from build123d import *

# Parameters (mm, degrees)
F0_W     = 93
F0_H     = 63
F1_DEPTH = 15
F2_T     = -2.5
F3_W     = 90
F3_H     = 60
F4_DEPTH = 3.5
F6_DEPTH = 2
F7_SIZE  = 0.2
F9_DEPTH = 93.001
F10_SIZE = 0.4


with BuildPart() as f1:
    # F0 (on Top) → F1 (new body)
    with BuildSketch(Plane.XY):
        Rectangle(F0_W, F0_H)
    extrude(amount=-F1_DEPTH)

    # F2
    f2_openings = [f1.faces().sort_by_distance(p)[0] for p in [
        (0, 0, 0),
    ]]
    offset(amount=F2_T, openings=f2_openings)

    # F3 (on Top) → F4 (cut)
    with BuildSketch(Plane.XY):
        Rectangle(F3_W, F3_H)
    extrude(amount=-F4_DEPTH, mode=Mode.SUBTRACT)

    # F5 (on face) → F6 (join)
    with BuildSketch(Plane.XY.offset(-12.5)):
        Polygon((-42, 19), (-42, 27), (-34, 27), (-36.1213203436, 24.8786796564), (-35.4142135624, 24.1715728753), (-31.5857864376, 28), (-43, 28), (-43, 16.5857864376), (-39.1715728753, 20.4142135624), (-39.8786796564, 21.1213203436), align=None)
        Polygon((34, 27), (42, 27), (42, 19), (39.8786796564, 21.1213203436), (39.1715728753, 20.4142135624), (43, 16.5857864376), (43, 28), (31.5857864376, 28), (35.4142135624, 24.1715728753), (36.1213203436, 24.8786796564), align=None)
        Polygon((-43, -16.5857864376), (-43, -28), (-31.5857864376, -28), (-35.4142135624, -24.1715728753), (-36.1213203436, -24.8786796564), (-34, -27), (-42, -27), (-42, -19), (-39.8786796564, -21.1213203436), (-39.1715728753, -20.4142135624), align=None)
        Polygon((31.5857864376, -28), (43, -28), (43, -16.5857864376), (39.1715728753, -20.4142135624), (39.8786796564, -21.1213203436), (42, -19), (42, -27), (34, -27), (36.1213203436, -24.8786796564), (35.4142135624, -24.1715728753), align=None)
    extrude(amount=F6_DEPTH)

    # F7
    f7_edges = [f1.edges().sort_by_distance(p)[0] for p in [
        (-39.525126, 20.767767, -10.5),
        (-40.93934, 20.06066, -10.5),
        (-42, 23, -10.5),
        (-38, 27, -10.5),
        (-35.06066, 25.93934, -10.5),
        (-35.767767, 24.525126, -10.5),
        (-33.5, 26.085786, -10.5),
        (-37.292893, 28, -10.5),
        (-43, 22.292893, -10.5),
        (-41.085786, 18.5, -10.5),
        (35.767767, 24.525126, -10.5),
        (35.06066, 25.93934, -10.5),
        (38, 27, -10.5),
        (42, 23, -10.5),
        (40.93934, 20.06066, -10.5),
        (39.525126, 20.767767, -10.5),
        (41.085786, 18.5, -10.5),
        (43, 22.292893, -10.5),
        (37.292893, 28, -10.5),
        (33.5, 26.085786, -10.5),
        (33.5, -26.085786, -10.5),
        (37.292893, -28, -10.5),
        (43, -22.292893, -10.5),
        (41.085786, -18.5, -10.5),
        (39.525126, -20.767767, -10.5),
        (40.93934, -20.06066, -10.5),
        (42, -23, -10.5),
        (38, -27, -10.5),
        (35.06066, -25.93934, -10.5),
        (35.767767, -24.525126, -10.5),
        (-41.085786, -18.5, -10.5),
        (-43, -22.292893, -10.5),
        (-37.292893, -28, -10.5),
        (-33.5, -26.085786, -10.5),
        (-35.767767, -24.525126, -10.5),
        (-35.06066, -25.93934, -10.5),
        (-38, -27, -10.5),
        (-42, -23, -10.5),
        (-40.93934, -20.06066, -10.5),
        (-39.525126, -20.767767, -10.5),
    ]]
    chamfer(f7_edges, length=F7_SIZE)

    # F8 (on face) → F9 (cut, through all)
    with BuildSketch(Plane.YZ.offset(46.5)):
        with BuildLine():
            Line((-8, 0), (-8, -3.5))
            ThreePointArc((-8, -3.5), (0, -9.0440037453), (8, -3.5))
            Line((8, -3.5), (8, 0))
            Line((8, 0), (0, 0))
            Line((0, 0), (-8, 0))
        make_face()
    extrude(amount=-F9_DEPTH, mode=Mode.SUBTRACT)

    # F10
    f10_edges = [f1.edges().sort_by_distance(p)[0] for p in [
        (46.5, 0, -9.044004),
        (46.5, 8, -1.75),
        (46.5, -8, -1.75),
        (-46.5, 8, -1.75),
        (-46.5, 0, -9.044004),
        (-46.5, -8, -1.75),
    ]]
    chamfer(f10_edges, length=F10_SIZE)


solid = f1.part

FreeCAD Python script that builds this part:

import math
import FreeCAD as App
import Part
import Sketcher
from FreeCAD import Vector
Q = App.Units.Quantity


def edges_at(feature, points):
    """Names of the edges that pass closest to the given points."""
    edges = feature.Shape.Edges
    near = lambda p: min(range(len(edges)), key=lambda i: edges[i].distToShape(Part.Vertex(*p))[0])
    return sorted({f"Edge{near(p) + 1}" for p in points})


def faces_at(feature, points):
    """Names of the faces that lie closest to the given points."""
    faces = feature.Shape.Faces
    near = lambda p: min(range(len(faces)), key=lambda i: faces[i].distToShape(Part.Vertex(*p))[0])
    return sorted({f"Face{near(p) + 1}" for p in points})


def add_polygon(sketch, points):
    """Adds a closed chain of lines whose ends are joined by coincident constraints."""
    first, n = sketch.GeometryCount, len(points)
    for a, b in zip(points, points[1:] + points[:1]):
        sketch.addGeometry(Part.LineSegment(App.Vector(*a, 0), App.Vector(*b, 0)), False)
    for i in range(n):
        sketch.addConstraint(Sketcher.Constraint("Coincident", first + i, 2, first + (i + 1) % n, 1))

doc = App.newDocument("Part")
body = doc.addObject("PartDesign::Body", "Body")

# Sketch on XY plane
sketch1 = body.newObject("Sketcher::SketchObject", "Sketch")
sketch1.AttachmentSupport = (doc.getObject("XY_Plane"), [""])
sketch1.MapMode = "FlatFace"
add_polygon(sketch1, [(-46.5, 31.5), (-46.5, -31.5), (46.5, -31.5), (46.5, 31.5)])  # lines 0-3
sketch1.addConstraint(Sketcher.Constraint("Vertical", 0))
sketch1.addConstraint(Sketcher.Constraint("Horizontal", 1))
sketch1.addConstraint(Sketcher.Constraint("Vertical", 2))
sketch1.addConstraint(Sketcher.Constraint("Horizontal", 3))
sketch1.addConstraint(Sketcher.Constraint("Symmetric", 0, 2, 2, 2, -1, 1))
sketch1.addConstraint(Sketcher.Constraint("DistanceX", 1, 1, 1, 2, Q("93 mm")))
sketch1.addConstraint(Sketcher.Constraint("DistanceY", 0, 2, 0, 1, Q("63 mm")))
pad1 = body.newObject("PartDesign::Pad", "Pad")
pad1.Profile = sketch1
pad1.Length = 15
pad1.Reversed = True
doc.recompute()

thickness = body.newObject("PartDesign::Thickness", "Thickness")
thickness.Base = (pad1, faces_at(pad1, [(0, 0, 0)]))
thickness.Value = 2.5
thickness.Reversed = True
thickness.Join = "Arc"

# Sketch on XY plane
sketch2 = body.newObject("Sketcher::SketchObject", "Sketch001")
sketch2.AttachmentSupport = (doc.getObject("XY_Plane"), [""])
sketch2.MapMode = "FlatFace"
add_polygon(sketch2, [(-45, 30), (-45, -30), (45, -30), (45, 30)])  # lines 0-3
sketch2.addConstraint(Sketcher.Constraint("Vertical", 0))
sketch2.addConstraint(Sketcher.Constraint("Horizontal", 1))
sketch2.addConstraint(Sketcher.Constraint("Vertical", 2))
sketch2.addConstraint(Sketcher.Constraint("Horizontal", 3))
sketch2.addConstraint(Sketcher.Constraint("Symmetric", 0, 2, 2, 2, -1, 1))
sketch2.addConstraint(Sketcher.Constraint("DistanceX", 1, 1, 1, 2, Q("90 mm")))
sketch2.addConstraint(Sketcher.Constraint("DistanceY", 0, 2, 0, 1, Q("60 mm")))
pocket1 = body.newObject("PartDesign::Pocket", "Pocket")
pocket1.Profile = sketch2
pocket1.Length = 3.5

# Sketch on XY plane
sketch3 = body.newObject("Sketcher::SketchObject", "Sketch002")
sketch3.AttachmentSupport = (doc.getObject("XY_Plane"), [""])
sketch3.MapMode = "FlatFace"
sketch3.AttachmentOffset = App.Placement(Vector(0, 0, -12.5), App.Rotation())
add_polygon(sketch3, [(-42, 19), (-42, 27), (-34, 27), (-36.12132, 24.87868), (-35.414214, 24.171573), (-31.585786, 28), (-43, 28), (-43, 16.585786), (-39.171573, 20.414214), (-39.87868, 21.12132)])  # lines 0-9
add_polygon(sketch3, [(34, 27), (42, 27), (42, 19), (39.87868, 21.12132), (39.171573, 20.414214), (43, 16.585786), (43, 28), (31.585786, 28), (35.414214, 24.171573), (36.12132, 24.87868)])  # lines 10-19
add_polygon(sketch3, [(-43, -16.585786), (-43, -28), (-31.585786, -28), (-35.414214, -24.171573), (-36.12132, -24.87868), (-34, -27), (-42, -27), (-42, -19), (-39.87868, -21.12132), (-39.171573, -20.414214)])  # lines 20-29
add_polygon(sketch3, [(31.585786, -28), (43, -28), (43, -16.585786), (39.171573, -20.414214), (39.87868, -21.12132), (42, -19), (42, -27), (34, -27), (36.12132, -24.87868), (35.414214, -24.171573)])  # lines 30-39
sketch3.addConstraint(Sketcher.Constraint("Vertical", 0))
sketch3.addConstraint(Sketcher.Constraint("Horizontal", 1))
sketch3.addConstraint(Sketcher.Constraint("Horizontal", 5))
sketch3.addConstraint(Sketcher.Constraint("Vertical", 6))
sketch3.addConstraint(Sketcher.Constraint("Horizontal", 10))
sketch3.addConstraint(Sketcher.Constraint("Vertical", 11))
sketch3.addConstraint(Sketcher.Constraint("Vertical", 15))
sketch3.addConstraint(Sketcher.Constraint("Horizontal", 16))
sketch3.addConstraint(Sketcher.Constraint("Vertical", 20))
sketch3.addConstraint(Sketcher.Constraint("Horizontal", 21))
sketch3.addConstraint(Sketcher.Constraint("Horizontal", 25))
sketch3.addConstraint(Sketcher.Constraint("Vertical", 26))
sketch3.addConstraint(Sketcher.Constraint("Horizontal", 30))
sketch3.addConstraint(Sketcher.Constraint("Vertical", 31))
sketch3.addConstraint(Sketcher.Constraint("Vertical", 35))
sketch3.addConstraint(Sketcher.Constraint("Horizontal", 36))
sketch3.addConstraint(Sketcher.Constraint("Symmetric", 15, 2, 20, 2, -1, 1))
sketch3.addConstraint(Sketcher.Constraint("Symmetric", 17, 2, 22, 2, -1, 1))
sketch3.addConstraint(Sketcher.Constraint("Symmetric", 18, 2, 23, 2, -1, 1))
sketch3.addConstraint(Sketcher.Constraint("Symmetric", 19, 2, 24, 2, -1, 1))
sketch3.addConstraint(Sketcher.Constraint("Symmetric", 11, 2, 26, 2, -1, 1))
sketch3.addConstraint(Sketcher.Constraint("Symmetric", 12, 2, 27, 2, -1, 1))
sketch3.addConstraint(Sketcher.Constraint("Symmetric", 13, 2, 28, 2, -1, 1))
sketch3.addConstraint(Sketcher.Constraint("Symmetric", 5, 2, 30, 2, -1, 1))
sketch3.addConstraint(Sketcher.Constraint("Symmetric", 7, 2, 32, 2, -1, 1))
sketch3.addConstraint(Sketcher.Constraint("Symmetric", 8, 2, 33, 2, -1, 1))
sketch3.addConstraint(Sketcher.Constraint("Symmetric", 9, 2, 34, 2, -1, 1))
sketch3.addConstraint(Sketcher.Constraint("Symmetric", 1, 2, 36, 2, -1, 1))
sketch3.addConstraint(Sketcher.Constraint("Symmetric", 2, 2, 37, 2, -1, 1))
sketch3.addConstraint(Sketcher.Constraint("Symmetric", 3, 2, 38, 2, -1, 1))
sketch3.addConstraint(Sketcher.Constraint("Symmetric", 0, 2, 10, 2, -2))
sketch3.addConstraint(Sketcher.Constraint("Symmetric", 8, 2, 12, 2, -2))
sketch3.addConstraint(Sketcher.Constraint("Symmetric", 7, 2, 13, 2, -2))
sketch3.addConstraint(Sketcher.Constraint("Symmetric", 6, 2, 14, 2, -2))
sketch3.addConstraint(Sketcher.Constraint("Symmetric", 4, 2, 16, 2, -2))
sketch3.addConstraint(Sketcher.Constraint("Symmetric", 3, 2, 17, 2, -2))
sketch3.addConstraint(Sketcher.Constraint("Symmetric", 2, 2, 18, 2, -2))
sketch3.addConstraint(Sketcher.Constraint("Perpendicular", 2, 3))
sketch3.addConstraint(Sketcher.Constraint("Perpendicular", 3, 4))
sketch3.addConstraint(Sketcher.Constraint("Parallel", 4, 7))
sketch3.addConstraint(Sketcher.Constraint("Perpendicular", 7, 8))
sketch3.addConstraint(Sketcher.Constraint("Perpendicular", 8, 9))
sketch3.addConstraint(Sketcher.Constraint("Perpendicular", 9, 12))
sketch3.addConstraint(Sketcher.Constraint("Perpendicular", 12, 13))
sketch3.addConstraint(Sketcher.Constraint("Perpendicular", 18, 19))
sketch3.addConstraint(Sketcher.Constraint("Parallel", 19, 22))
sketch3.addConstraint(Sketcher.Constraint("Perpendicular", 28, 29))
sketch3.addConstraint(Sketcher.Constraint("Perpendicular", 29, 32))
sketch3.addConstraint(Sketcher.Constraint("Perpendicular", 38, 39))
sketch3.addConstraint(Sketcher.Constraint("Equal", 36, 0))
sketch3.addConstraint(Sketcher.Constraint("Equal", 30, 6))
sketch3.addConstraint(Sketcher.Constraint("Equal", 4, 7))
sketch3.addConstraint(Sketcher.Constraint("Equal", 2, 9))
sketch3.addConstraint(Sketcher.Constraint("DistanceX", 1, 1, 1, 2, Q("8 mm")))
sketch3.addConstraint(Sketcher.Constraint("Distance", 2, Q("3 mm")))
sketch3.addConstraint(Sketcher.Constraint("Distance", 3, Q("1 mm")))
sketch3.addConstraint(Sketcher.Constraint("DistanceX", 0, 2, -1, 1, Q("42 mm")))
sketch3.addConstraint(Sketcher.Constraint("DistanceY", -1, 1, 0, 2, Q("27 mm")))
sketch3.addConstraint(Sketcher.Constraint("DistanceY", -1, 1, 4, 2, Q("28 mm")))
pad2 = body.newObject("PartDesign::Pad", "Pad001")
pad2.Profile = sketch3
pad2.Length = 2
doc.recompute()

chamfer = body.newObject("PartDesign::Chamfer", "Chamfer")
chamfer.Base = (pad2, edges_at(pad2, [
    (-39.525, 20.768, -10.5),
    (-40.939, 20.061, -10.5),
    (-42, 23, -10.5),
    (-38, 27, -10.5),
    (-35.061, 25.939, -10.5),
    (-35.768, 24.525, -10.5),
    (-33.5, 26.086, -10.5),
    (-37.293, 28, -10.5),
    (-43, 22.293, -10.5),
    (-41.086, 18.5, -10.5),
    (35.768, 24.525, -10.5),
    (35.061, 25.939, -10.5),
    (38, 27, -10.5),
    (42, 23, -10.5),
    (40.939, 20.061, -10.5),
    (39.525, 20.768, -10.5),
    (41.086, 18.5, -10.5),
    (43, 22.293, -10.5),
    (37.293, 28, -10.5),
    (33.5, 26.086, -10.5),
    (33.5, -26.086, -10.5),
    (37.293, -28, -10.5),
    (43, -22.293, -10.5),
    (41.086, -18.5, -10.5),
    (39.525, -20.768, -10.5),
    (40.939, -20.061, -10.5),
    (42, -23, -10.5),
    (38, -27, -10.5),
    (35.061, -25.939, -10.5),
    (35.768, -24.525, -10.5),
    (-41.086, -18.5, -10.5),
    (-43, -22.293, -10.5),
    (-37.293, -28, -10.5),
    (-33.5, -26.086, -10.5),
    (-35.768, -24.525, -10.5),
    (-35.061, -25.939, -10.5),
    (-38, -27, -10.5),
    (-42, -23, -10.5),
    (-40.939, -20.061, -10.5),
    (-39.525, -20.768, -10.5),
]))
chamfer.Size = 0.2

# Sketch on YZ plane
sketch4 = body.newObject("Sketcher::SketchObject", "Sketch003")
sketch4.AttachmentSupport = (doc.getObject("YZ_Plane"), [""])
sketch4.MapMode = "FlatFace"
sketch4.AttachmentOffset = App.Placement(Vector(0, 0, 46.5), App.Rotation())
sketch4.addGeometry(Part.LineSegment(Vector(-8, 0, 0), Vector(-8, -3.5, 0)), False)
sketch4.addGeometry(Part.ArcOfCircle(Part.Circle(Vector(0, -0.5, 0), Vector(0, 0, 1), 8.544004), math.radians(-159.443955), math.radians(-20.556045)), False)
sketch4.addGeometry(Part.LineSegment(Vector(8, -3.5, 0), Vector(8, 0, 0)), False)
sketch4.addGeometry(Part.LineSegment(Vector(8, 0, 0), Vector(-8, 0, 0)), False)
sketch4.addConstraint(Sketcher.Constraint("Coincident", 0, 2, 1, 1))
sketch4.addConstraint(Sketcher.Constraint("Coincident", 1, 2, 2, 1))
sketch4.addConstraint(Sketcher.Constraint("Coincident", 2, 2, 3, 1))
sketch4.addConstraint(Sketcher.Constraint("Coincident", 3, 2, 0, 1))
sketch4.addConstraint(Sketcher.Constraint("Vertical", 0))
sketch4.addConstraint(Sketcher.Constraint("Vertical", 2))
sketch4.addConstraint(Sketcher.Constraint("Horizontal", 3))
sketch4.addConstraint(Sketcher.Constraint("Symmetric", 2, 2, 3, 2, -1, 1))
sketch4.addConstraint(Sketcher.Constraint("PointOnObject", 1, 3, -2))
sketch4.addConstraint(Sketcher.Constraint("DistanceX", 3, 2, 3, 1, Q("16 mm")))
sketch4.addConstraint(Sketcher.Constraint("DistanceY", 0, 2, 0, 1, Q("3.5 mm")))
sketch4.addConstraint(Sketcher.Constraint("DistanceY", 0, 2, 1, 3, Q("3 mm")))
pocket2 = body.newObject("PartDesign::Pocket", "Pocket001")
pocket2.Profile = sketch4
pocket2.Type = "ThroughAll"
doc.recompute()

chamfer2 = body.newObject("PartDesign::Chamfer", "Chamfer001")
chamfer2.Base = (pocket2, edges_at(pocket2, [
    (46.5, 0, -9.044),
    (46.5, 8, -1.75),
    (46.5, -8, -1.75),
    (-46.5, 8, -1.75),
    (-46.5, 0, -9.044),
    (-46.5, -8, -1.75),
]))
chamfer2.Size = 0.4

doc.recompute()
